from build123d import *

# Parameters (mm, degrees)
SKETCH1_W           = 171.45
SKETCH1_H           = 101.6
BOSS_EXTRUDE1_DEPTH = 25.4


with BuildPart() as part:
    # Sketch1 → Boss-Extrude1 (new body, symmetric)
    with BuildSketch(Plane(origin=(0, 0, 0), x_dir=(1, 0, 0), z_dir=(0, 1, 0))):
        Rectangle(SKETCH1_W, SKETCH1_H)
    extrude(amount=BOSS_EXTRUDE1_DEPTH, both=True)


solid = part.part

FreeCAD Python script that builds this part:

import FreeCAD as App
import Part
import Sketcher
Q = App.Units.Quantity


def add_polygon(sketch, points):
    """Adds a closed chain of lines whose ends are joined by coincident constraints."""
    first, n = sketch.GeometryCount, len(points)
    for a, b in zip(points, points[1:] + points[:1]):
        sketch.addGeometry(Part.LineSegment(App.Vector(*a, 0), App.Vector(*b, 0)), False)
    for i in range(n):
        sketch.addConstraint(Sketcher.Constraint("Coincident", first + i, 2, first + (i + 1) % n, 1))

doc = App.newDocument("Part")
body = doc.addObject("PartDesign::Body", "Body")

sketch1 = doc.addObject("Sketcher::SketchObject", "Sketch")
body.addObject(sketch1)
sketch1.AttachmentSupport = (doc.XZ_Plane, [""])
sketch1.MapMode = "FlatFace"
add_polygon(sketch1, [(-85.725, -50.8), (-85.725, 50.8), (85.725, 50.8), (85.725, -50.8)])
sketch1.addConstraint([
    Sketcher.Constraint("Vertical", 0),
    Sketcher.Constraint("Horizontal", 1),
    Sketcher.Constraint("Vertical", 2),
    Sketcher.Constraint("Horizontal", 3),
    Sketcher.Constraint("Symmetric", 0, 2, 2, 2, -1, 1),
    Sketcher.Constraint("DistanceY", 0, 1, 0, 2, Q("4 in")),
    Sketcher.Constraint("DistanceX", 1, 1, 1, 2, Q("6.75 in")),
])
pad1 = doc.addObject("PartDesign::Pad", "Pad")
body.addObject(pad1)
pad1.Profile = sketch1
pad1.Length = Q("2 in")
pad1.Midplane = True

doc.recompute()
